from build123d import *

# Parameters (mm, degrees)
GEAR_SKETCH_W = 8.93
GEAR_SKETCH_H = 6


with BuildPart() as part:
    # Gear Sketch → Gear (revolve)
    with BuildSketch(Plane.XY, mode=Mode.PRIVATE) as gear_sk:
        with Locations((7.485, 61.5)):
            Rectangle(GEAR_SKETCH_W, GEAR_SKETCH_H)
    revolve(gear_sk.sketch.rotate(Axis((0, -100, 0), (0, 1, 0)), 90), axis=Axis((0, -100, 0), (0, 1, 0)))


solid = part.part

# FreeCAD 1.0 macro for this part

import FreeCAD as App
import Part
import Sketcher

V = App.Vector

doc = App.newDocument("Part")
body = doc.addObject("PartDesign::Body", "Body")

# Sketch on XY plane
sketch1 = body.newObject("Sketcher::SketchObject", "Sketch")
sketch1.AttachmentSupport = (doc.getObject("XY_Plane"), [""])
sketch1.MapMode = "FlatFace"
sketch1.addGeometry(Part.LineSegment(V(3, 64, 0), V(3, 58, 0)), False)
sketch1.addGeometry(Part.LineSegment(V(3, 58, 0), V(12, 58, 0)), False)
sketch1.addGeometry(Part.LineSegment(V(12, 58, 0), V(12, 64, 0)), False)
sketch1.addGeometry(Part.LineSegment(V(12, 64, 0), V(3, 64, 0)), False)
sketch1.addConstraint(Sketcher.Constraint("Coincident", 0, 2, 1, 1))
sketch1.addConstraint(Sketcher.Constraint("Coincident", 1, 2, 2, 1))
sketch1.addConstraint(Sketcher.Constraint("Coincident", 2, 2, 3, 1))
sketch1.addConstraint(Sketcher.Constraint("Coincident", 3, 2, 0, 1))
sketch1.addConstraint(Sketcher.Constraint("Vertical", 0))
sketch1.addConstraint(Sketcher.Constraint("Horizontal", 1))
sketch1.addConstraint(Sketcher.Constraint("Vertical", 2))
sketch1.addConstraint(Sketcher.Constraint("Horizontal", 3))
sketch1.addConstraint(Sketcher.Constraint("DistanceY", 0, 2, 0, 1, 6.0))
sketch1.addConstraint(Sketcher.Constraint("DistanceX", 1, 1, 1, 2, 8.93))
sketch1.addConstraint(Sketcher.Constraint("DistanceY", -1, 1, 0, 2, 58.5))
sketch1.addConstraint(Sketcher.Constraint("DistanceX", -1, 1, 0, 2, 3.02))
revolution = body.newObject("PartDesign::Revolution", "Revolution")
revolution.Profile = sketch1
revolution.ReferenceAxis = (sketch1, ["V_Axis"])
revolution.Angle = 360

doc.recompute()
